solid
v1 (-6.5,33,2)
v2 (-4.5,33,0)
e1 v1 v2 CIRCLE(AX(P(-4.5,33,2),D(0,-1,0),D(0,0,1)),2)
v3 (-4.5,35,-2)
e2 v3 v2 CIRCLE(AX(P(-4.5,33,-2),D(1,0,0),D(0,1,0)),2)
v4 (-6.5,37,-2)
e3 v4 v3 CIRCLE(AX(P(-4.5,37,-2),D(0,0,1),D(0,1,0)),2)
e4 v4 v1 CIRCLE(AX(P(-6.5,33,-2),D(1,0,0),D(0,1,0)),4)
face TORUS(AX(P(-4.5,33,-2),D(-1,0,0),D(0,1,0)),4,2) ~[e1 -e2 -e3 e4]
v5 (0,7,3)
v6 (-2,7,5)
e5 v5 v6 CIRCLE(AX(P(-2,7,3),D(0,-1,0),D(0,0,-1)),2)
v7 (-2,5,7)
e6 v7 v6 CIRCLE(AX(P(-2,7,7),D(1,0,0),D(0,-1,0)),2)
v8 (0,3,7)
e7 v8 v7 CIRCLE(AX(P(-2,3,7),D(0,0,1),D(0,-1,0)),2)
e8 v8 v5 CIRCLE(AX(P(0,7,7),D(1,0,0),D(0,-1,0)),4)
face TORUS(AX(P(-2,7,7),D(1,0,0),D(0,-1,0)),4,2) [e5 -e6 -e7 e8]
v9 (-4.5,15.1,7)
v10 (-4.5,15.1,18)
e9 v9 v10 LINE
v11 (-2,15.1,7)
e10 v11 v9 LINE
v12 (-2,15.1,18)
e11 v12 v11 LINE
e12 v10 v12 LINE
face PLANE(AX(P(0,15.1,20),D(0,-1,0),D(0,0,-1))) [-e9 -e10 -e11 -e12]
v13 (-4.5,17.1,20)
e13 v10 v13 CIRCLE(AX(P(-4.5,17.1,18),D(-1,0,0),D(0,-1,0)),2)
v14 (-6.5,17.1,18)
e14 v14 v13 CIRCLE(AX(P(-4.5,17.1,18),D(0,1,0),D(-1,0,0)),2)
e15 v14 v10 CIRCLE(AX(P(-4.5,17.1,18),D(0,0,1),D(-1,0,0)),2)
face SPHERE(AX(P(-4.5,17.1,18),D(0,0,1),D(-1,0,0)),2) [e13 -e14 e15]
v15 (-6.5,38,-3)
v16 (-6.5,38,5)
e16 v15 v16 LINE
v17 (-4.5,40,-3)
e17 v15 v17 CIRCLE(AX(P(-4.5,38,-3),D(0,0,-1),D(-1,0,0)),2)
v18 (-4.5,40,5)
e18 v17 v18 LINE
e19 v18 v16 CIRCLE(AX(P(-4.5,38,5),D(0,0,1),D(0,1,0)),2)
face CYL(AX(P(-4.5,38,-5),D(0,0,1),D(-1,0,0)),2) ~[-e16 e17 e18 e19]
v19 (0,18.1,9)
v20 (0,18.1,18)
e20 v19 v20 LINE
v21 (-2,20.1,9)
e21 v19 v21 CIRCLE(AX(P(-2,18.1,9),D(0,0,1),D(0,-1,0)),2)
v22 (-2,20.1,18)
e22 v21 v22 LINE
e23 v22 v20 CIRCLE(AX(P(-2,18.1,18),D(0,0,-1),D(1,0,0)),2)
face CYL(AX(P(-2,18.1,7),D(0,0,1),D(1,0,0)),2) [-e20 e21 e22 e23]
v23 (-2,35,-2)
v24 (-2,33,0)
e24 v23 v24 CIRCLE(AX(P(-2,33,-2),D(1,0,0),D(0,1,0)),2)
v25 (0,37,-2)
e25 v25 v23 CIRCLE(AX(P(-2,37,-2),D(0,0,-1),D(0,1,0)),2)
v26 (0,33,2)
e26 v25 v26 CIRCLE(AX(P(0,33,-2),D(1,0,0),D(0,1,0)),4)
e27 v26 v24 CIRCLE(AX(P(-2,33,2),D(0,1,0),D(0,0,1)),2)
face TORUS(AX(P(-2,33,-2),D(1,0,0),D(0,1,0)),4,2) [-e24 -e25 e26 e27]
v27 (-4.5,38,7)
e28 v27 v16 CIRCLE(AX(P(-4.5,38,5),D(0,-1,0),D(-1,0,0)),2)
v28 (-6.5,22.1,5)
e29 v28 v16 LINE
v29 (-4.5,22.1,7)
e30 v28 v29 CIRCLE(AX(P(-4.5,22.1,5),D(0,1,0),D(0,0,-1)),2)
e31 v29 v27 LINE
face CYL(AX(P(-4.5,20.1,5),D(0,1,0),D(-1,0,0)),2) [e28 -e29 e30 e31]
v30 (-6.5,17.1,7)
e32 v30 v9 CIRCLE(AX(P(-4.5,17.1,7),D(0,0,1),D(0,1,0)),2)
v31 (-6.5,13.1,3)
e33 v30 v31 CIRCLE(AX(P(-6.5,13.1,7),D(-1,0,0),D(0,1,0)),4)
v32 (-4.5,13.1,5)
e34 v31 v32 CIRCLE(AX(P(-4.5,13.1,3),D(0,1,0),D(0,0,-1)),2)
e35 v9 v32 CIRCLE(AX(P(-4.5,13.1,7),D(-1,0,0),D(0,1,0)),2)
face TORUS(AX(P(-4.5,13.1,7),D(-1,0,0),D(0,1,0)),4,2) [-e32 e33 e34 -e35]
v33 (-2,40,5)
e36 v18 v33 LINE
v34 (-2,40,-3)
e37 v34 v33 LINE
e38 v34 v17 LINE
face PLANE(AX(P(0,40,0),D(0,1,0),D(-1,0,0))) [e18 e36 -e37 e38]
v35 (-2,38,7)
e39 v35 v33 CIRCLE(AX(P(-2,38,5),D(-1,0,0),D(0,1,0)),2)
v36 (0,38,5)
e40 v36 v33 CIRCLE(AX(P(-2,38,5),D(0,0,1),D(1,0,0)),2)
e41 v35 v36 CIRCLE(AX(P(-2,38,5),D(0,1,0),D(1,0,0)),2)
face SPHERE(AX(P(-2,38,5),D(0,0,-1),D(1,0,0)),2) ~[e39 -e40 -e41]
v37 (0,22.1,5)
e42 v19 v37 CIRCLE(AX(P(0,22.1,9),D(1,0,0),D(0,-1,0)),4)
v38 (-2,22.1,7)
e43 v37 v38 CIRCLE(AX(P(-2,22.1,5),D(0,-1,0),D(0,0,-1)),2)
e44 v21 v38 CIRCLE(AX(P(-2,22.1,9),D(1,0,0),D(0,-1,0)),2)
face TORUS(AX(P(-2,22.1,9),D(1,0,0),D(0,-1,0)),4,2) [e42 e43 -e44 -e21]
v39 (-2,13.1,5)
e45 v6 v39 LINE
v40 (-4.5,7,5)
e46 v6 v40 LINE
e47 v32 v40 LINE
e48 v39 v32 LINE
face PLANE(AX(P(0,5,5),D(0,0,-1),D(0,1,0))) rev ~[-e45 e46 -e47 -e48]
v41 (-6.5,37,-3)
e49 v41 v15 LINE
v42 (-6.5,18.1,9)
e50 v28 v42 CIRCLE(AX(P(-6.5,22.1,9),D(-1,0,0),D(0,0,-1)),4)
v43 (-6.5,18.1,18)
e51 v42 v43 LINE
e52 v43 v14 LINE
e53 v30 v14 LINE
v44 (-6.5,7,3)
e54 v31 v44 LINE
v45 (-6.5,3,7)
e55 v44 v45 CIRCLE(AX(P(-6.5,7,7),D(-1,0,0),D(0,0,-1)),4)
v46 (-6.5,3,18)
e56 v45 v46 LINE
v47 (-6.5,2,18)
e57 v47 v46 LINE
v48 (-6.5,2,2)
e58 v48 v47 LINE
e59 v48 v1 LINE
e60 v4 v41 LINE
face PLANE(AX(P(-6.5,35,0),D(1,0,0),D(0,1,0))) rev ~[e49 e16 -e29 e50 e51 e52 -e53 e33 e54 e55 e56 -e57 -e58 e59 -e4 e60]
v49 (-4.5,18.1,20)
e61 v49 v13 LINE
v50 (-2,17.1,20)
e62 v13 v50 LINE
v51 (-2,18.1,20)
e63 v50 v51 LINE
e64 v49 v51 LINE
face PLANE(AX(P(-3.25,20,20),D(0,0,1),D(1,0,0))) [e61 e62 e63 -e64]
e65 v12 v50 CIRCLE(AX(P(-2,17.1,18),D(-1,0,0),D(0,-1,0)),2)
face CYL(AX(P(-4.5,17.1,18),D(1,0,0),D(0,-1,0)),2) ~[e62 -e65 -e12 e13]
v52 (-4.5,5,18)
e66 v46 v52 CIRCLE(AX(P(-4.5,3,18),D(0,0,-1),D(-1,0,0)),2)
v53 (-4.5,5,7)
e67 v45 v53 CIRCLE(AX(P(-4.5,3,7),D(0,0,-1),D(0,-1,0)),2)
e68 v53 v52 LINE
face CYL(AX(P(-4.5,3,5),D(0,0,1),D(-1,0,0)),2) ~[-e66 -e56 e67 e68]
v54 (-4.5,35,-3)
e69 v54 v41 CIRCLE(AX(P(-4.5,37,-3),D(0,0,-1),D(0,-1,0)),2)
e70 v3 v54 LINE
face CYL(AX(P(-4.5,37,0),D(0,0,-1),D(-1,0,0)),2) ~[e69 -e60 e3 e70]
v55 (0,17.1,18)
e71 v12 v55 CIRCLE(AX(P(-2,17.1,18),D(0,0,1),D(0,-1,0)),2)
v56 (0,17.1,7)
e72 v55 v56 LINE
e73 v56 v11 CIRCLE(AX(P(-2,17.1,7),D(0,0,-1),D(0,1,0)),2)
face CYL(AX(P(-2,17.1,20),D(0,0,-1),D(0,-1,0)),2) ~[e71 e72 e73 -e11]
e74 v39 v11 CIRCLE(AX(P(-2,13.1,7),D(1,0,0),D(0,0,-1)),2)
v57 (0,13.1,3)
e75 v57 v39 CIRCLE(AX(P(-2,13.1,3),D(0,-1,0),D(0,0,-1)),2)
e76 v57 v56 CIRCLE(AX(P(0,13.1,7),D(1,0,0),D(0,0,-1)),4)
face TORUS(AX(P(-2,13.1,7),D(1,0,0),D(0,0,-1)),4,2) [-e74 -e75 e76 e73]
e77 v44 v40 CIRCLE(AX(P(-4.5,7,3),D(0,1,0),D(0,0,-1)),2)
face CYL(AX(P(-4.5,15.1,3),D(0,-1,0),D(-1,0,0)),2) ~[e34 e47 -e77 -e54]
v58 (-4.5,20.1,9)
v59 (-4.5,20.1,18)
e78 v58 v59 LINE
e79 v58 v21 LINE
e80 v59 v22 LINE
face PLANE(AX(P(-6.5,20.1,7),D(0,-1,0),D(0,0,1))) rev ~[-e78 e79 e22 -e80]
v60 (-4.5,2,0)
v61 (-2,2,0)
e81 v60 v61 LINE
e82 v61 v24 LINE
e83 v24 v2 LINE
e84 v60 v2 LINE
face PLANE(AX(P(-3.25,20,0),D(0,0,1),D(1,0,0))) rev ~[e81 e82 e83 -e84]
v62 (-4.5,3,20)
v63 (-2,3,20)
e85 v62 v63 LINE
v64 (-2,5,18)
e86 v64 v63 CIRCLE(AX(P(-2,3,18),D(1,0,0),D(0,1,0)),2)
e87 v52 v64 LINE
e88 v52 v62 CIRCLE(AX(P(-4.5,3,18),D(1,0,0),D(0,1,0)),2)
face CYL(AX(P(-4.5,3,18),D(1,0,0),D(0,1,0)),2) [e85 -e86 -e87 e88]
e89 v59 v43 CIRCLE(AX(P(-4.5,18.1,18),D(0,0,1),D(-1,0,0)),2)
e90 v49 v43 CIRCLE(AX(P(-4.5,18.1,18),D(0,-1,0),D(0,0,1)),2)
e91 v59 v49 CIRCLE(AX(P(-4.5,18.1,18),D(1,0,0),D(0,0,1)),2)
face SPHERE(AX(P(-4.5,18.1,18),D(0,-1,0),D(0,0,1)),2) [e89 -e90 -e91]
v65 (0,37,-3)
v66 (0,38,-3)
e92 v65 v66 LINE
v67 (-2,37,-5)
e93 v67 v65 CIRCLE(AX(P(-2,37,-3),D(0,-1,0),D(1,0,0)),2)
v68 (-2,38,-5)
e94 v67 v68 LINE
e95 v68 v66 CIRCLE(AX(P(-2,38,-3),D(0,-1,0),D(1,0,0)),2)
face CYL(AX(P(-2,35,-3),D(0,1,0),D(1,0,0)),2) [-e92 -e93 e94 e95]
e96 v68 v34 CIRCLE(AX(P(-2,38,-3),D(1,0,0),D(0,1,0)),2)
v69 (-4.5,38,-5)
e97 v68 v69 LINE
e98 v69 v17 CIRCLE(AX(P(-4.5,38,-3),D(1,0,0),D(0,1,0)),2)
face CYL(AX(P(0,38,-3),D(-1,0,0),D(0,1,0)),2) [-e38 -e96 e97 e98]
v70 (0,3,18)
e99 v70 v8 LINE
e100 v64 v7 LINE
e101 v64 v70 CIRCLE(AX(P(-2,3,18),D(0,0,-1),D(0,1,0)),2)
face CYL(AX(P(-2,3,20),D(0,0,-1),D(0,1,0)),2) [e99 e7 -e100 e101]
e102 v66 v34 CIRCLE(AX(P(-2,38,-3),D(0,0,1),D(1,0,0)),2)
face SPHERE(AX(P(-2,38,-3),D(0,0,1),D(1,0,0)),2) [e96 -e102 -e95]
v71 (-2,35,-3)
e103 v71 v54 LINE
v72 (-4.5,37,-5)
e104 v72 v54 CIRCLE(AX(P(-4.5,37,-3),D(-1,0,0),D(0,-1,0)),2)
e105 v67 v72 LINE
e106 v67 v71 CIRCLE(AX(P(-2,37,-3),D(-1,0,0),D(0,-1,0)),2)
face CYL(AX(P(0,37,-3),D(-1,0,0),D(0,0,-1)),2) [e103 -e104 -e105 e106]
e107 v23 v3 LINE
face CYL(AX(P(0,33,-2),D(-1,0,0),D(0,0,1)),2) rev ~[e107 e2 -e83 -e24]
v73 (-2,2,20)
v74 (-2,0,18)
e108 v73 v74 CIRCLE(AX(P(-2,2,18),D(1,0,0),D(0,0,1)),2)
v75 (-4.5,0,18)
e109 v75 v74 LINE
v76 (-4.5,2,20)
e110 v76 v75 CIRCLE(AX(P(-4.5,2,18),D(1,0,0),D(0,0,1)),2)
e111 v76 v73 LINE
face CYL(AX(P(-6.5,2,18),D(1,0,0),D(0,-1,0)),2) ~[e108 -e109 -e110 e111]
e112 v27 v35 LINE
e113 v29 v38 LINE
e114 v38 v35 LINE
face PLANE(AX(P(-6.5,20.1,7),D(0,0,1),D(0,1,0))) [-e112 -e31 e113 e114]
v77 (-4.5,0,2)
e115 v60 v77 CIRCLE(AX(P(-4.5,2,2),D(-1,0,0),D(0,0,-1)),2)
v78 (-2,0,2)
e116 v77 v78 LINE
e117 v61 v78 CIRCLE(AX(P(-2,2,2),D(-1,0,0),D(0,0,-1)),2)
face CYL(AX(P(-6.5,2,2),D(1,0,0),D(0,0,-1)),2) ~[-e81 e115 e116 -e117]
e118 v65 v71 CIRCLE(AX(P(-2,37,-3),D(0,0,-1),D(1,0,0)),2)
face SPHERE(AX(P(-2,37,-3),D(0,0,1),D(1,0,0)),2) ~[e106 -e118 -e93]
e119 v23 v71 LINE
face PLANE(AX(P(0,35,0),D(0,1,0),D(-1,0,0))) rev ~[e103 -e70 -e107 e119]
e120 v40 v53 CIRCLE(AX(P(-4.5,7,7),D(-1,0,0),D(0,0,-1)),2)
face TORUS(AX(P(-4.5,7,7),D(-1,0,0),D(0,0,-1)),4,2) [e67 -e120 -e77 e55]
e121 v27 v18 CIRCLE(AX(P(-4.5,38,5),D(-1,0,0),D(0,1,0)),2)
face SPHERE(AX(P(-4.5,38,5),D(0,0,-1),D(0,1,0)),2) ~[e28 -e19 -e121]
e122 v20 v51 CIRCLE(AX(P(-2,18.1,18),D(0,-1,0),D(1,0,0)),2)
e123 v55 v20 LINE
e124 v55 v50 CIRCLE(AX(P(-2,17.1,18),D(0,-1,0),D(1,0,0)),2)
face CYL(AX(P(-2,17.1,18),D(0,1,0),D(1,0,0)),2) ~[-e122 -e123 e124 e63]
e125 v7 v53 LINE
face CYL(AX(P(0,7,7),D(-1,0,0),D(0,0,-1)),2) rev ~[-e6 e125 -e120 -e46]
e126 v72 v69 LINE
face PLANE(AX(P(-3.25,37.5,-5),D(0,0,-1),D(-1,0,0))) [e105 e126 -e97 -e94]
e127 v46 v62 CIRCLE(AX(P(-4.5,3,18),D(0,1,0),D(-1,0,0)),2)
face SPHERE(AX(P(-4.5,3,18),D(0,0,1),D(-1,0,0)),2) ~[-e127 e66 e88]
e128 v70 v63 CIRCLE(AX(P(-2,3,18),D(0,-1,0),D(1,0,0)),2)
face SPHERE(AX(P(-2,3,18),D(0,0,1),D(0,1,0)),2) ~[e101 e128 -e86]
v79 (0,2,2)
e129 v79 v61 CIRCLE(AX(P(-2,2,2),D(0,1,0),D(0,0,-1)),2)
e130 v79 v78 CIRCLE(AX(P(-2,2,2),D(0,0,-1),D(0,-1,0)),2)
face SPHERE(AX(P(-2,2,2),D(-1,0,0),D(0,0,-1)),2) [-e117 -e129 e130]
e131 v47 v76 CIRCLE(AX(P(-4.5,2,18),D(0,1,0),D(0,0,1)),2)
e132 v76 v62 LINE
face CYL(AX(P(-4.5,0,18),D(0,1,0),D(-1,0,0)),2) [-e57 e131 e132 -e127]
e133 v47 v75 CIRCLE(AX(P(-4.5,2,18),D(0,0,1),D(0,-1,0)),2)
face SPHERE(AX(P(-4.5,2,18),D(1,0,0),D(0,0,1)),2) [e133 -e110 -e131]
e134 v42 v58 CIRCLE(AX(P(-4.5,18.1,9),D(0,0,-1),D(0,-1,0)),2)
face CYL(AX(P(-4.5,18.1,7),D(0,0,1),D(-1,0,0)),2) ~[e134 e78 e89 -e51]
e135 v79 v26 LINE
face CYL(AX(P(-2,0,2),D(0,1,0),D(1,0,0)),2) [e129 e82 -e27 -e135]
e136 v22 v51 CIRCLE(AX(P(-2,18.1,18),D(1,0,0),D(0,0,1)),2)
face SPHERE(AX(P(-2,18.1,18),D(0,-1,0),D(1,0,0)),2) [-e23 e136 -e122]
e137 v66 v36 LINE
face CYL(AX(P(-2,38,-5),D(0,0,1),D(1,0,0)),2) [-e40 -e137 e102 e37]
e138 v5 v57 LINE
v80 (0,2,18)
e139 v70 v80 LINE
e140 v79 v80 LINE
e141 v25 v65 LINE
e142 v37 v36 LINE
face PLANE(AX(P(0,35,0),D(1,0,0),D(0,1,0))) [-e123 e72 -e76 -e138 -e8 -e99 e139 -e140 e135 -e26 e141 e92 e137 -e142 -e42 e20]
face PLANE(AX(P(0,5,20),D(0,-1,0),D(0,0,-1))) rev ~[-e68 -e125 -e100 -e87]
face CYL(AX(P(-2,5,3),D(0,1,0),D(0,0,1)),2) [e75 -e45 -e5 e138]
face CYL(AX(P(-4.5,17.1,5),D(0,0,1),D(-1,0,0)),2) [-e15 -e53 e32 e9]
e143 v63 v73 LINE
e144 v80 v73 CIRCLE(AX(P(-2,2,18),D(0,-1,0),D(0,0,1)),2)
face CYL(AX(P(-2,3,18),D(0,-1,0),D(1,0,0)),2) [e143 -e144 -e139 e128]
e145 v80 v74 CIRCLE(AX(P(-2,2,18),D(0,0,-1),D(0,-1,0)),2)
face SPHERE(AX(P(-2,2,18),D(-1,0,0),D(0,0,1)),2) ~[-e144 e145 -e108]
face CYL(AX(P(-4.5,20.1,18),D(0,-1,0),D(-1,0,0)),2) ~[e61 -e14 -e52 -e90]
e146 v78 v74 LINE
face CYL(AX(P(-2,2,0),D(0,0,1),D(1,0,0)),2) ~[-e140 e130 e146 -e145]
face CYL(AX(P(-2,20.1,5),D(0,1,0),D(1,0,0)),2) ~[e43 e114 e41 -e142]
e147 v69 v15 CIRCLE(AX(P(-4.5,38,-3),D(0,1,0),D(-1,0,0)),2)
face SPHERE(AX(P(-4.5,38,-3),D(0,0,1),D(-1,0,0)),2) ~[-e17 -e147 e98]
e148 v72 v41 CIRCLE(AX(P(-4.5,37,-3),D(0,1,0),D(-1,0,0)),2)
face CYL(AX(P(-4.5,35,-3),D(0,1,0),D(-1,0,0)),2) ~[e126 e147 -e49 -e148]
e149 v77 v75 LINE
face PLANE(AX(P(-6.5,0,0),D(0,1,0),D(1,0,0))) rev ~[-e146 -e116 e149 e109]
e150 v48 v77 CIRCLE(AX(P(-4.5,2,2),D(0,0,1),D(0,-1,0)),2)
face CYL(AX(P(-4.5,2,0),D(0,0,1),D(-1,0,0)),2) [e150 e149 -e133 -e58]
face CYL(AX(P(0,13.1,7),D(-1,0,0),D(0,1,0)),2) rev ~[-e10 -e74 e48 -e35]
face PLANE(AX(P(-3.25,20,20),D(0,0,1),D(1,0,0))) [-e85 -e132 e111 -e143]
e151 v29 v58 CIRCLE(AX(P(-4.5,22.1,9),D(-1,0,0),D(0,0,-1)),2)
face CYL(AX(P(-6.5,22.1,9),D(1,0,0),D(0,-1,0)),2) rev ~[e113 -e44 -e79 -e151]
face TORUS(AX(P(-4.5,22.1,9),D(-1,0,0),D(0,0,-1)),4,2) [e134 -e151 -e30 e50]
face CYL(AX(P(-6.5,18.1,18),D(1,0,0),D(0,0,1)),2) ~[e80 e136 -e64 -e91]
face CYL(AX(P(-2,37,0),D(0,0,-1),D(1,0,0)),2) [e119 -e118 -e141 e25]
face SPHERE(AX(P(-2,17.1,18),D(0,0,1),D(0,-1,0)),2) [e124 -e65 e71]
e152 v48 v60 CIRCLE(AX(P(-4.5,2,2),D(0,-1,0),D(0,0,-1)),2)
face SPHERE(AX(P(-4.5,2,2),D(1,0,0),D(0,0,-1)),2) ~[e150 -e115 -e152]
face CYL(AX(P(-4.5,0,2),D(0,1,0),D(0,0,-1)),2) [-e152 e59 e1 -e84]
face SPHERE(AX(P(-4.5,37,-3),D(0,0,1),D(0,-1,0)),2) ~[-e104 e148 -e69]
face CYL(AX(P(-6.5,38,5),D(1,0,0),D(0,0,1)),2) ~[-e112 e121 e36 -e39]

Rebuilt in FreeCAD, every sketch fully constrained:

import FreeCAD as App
import Part
import Sketcher
from FreeCAD import Vector
Q = App.Units.Quantity


def edges_at(feature, points):
    """Names of the edges that pass closest to the given points."""
    edges = feature.Shape.Edges
    near = lambda p: min(range(len(edges)), key=lambda i: edges[i].distToShape(Part.Vertex(*p))[0])
    return sorted({f"Edge{near(p) + 1}" for p in points})


def add_polygon(sketch, points):
    """Adds a closed chain of lines whose ends are joined by coincident constraints."""
    first, n = sketch.GeometryCount, len(points)
    for a, b in zip(points, points[1:] + points[:1]):
        sketch.addGeometry(Part.LineSegment(App.Vector(*a, 0), App.Vector(*b, 0)), False)
    for i in range(n):
        sketch.addConstraint(Sketcher.Constraint("Coincident", first + i, 2, first + (i + 1) % n, 1))

doc = App.newDocument("Part")
body = doc.addObject("PartDesign::Body", "Body")

# Sketch on XY plane
sketch1 = doc.addObject("Sketcher::SketchObject", "Sketch")
body.addObject(sketch1)
sketch1.AttachmentSupport = (doc.XY_Plane, [""])
sketch1.MapMode = "FlatFace"
add_polygon(sketch1, [(-6, 40), (-6, 0), (0, 0), (0, 40)])  # lines 0-3
sketch1.addConstraint(Sketcher.Constraint("Vertical", 0))
sketch1.addConstraint(Sketcher.Constraint("Horizontal", 1))
sketch1.addConstraint(Sketcher.Constraint("Vertical", 2))
sketch1.addConstraint(Sketcher.Constraint("Horizontal", 3))
sketch1.addConstraint(Sketcher.Constraint("Coincident", 1, 2, -1, 1))
sketch1.addConstraint(Sketcher.Constraint("DistanceY", 0, 2, 0, 1, Q("40 mm")))
sketch1.addConstraint(Sketcher.Constraint("DistanceX", 1, 1, 1, 2, Q("6.5 mm")))
pad1 = doc.addObject("PartDesign::Pad", "Pad")
body.addObject(pad1)
pad1.Profile = sketch1
pad1.Length = 20

# Sketch on YZ plane
sketch2 = doc.addObject("Sketcher::SketchObject", "Sketch001")
body.addObject(sketch2)
sketch2.AttachmentSupport = (doc.YZ_Plane, [""])
sketch2.MapMode = "FlatFace"
add_polygon(sketch2, [(15, 20), (5, 20), (5, 5), (15, 5)])  # lines 0-3
sketch2.addConstraint(Sketcher.Constraint("Horizontal", 0))
sketch2.addConstraint(Sketcher.Constraint("Vertical", 1))
sketch2.addConstraint(Sketcher.Constraint("Horizontal", 2))
sketch2.addConstraint(Sketcher.Constraint("Vertical", 3))
sketch2.addConstraint(Sketcher.Constraint("DistanceY", 1, 2, 1, 1, Q("15 mm")))
sketch2.addConstraint(Sketcher.Constraint("DistanceX", 0, 2, 0, 1, Q("10.1 mm")))
sketch2.addConstraint(Sketcher.Constraint("DistanceX", -1, 1, 0, 2, Q("5 mm")))
sketch2.addConstraint(Sketcher.Constraint("DistanceY", -1, 1, 0, 2, Q("20 mm")))
pocket1 = doc.addObject("PartDesign::Pocket", "Pocket")
body.addObject(pocket1)
pocket1.Profile = sketch2
pocket1.Type = "ThroughAll"
doc.recompute()

fillet = doc.addObject("PartDesign::Fillet", "Fillet")
body.addObject(fillet)
fillet.Base = (pocket1, edges_at(pocket1, [
    (-6.5, 15.1, 12.5),
    (-6.5, 10.05, 5),
    (-3.25, 15.1, 5),
    (-6.5, 5, 12.5),
    (-3.25, 5, 5),
    (0, 5, 12.5),
    (0, 10.05, 5),
    (0, 15.1, 12.5),
]))
fillet.Radius = 2

# Sketch on YZ plane
sketch3 = doc.addObject("Sketcher::SketchObject", "Sketch002")
body.addObject(sketch3)
sketch3.AttachmentSupport = (doc.YZ_Plane, [""])
sketch3.MapMode = "FlatFace"
sketch3.AttachmentOffset = App.Placement(Vector(0, 0, -6.5), App.Rotation())
add_polygon(sketch3, [(40, 7), (20, 7), (20, 20), (40, 20)])  # lines 0-3
sketch3.addConstraint(Sketcher.Constraint("Horizontal", 0))
sketch3.addConstraint(Sketcher.Constraint("Vertical", 1))
sketch3.addConstraint(Sketcher.Constraint("Horizontal", 2))
sketch3.addConstraint(Sketcher.Constraint("Vertical", 3))
sketch3.addConstraint(Sketcher.Constraint("DistanceY", 1, 1, 1, 2, Q("13 mm")))
sketch3.addConstraint(Sketcher.Constraint("DistanceX", 0, 2, 0, 1, Q("19.9 mm")))
sketch3.addConstraint(Sketcher.Constraint("DistanceY", -1, 1, 0, 2, Q("7 mm")))
sketch3.addConstraint(Sketcher.Constraint("DistanceX", -1, 1, 2, 2, Q("40 mm")))
pocket2 = doc.addObject("PartDesign::Pocket", "Pocket001")
body.addObject(pocket2)
pocket2.Profile = sketch3
pocket2.Type = "ThroughAll"
pocket2.Reversed = True

# Sketch on XY plane
sketch4 = doc.addObject("Sketcher::SketchObject", "Sketch003")
body.addObject(sketch4)
sketch4.AttachmentSupport = (doc.XY_Plane, [""])
sketch4.MapMode = "FlatFace"
add_polygon(sketch4, [(0, 40), (0, 35), (-6, 35), (-6, 40)])  # lines 0-3
sketch4.addConstraint(Sketcher.Constraint("Vertical", 0))
sketch4.addConstraint(Sketcher.Constraint("Horizontal", 1))
sketch4.addConstraint(Sketcher.Constraint("Vertical", 2))
sketch4.addConstraint(Sketcher.Constraint("Horizontal", 3))
sketch4.addConstraint(Sketcher.Constraint("PointOnObject", 0, 2, -2))
sketch4.addConstraint(Sketcher.Constraint("DistanceY", 0, 2, 0, 1, Q("5 mm")))
sketch4.addConstraint(Sketcher.Constraint("DistanceX", 1, 2, 1, 1, Q("6.5 mm")))
sketch4.addConstraint(Sketcher.Constraint("DistanceY", -1, 1, 0, 2, Q("35 mm")))
pad2 = doc.addObject("PartDesign::Pad", "Pad001")
body.addObject(pad2)
pad2.Profile = sketch4
pad2.Length = 5
pad2.Reversed = True
doc.recompute()

fillet2 = doc.addObject("PartDesign::Fillet", "Fillet001")
body.addObject(fillet2)
fillet2.Base = (pad2, edges_at(pad2, [
    (-3.25, 0, 20),
    (-6.5, 1.5, 20),
    (-3.25, 5, 20),
    (-0.586, 4.414, 20),
    (-5.914, 4.414, 20),
    (0, 18.6, 20),
    (-3.25, 15.1, 20),
    (-0.586, 15.686, 20),
    (-5.914, 15.686, 20),
    (0, 1.5, 20),
    (-3.25, 0, 0),
    (0, 17.5, 0),
    (-6.5, 18.6, 20),
    (-6.5, 40, 1),
    (0, 40, 1),
    (0, 20.1, 13.5),
    (-3.25, 20.1, 20),
    (0, 30.05, 7),
    (-3.25, 20.1, 7),
    (-3.25, 40, 7),
    (-6.5, 30.05, 7),
    (-6.5, 20.1, 13.5),
    (-6.5, 17.5, 0),
    (0, 0, 10),
    (-3.25, 35, 0),
    (-6.5, 0, 10),
    (0, 35, -2.5),
    (-6.5, 35, -2.5),
    (0, 37.5, -5),
    (-3.25, 35, -5),
    (-6.5, 37.5, -5),
    (-3.25, 40, -5),
]))
fillet2.Radius = 2

doc.recompute()
